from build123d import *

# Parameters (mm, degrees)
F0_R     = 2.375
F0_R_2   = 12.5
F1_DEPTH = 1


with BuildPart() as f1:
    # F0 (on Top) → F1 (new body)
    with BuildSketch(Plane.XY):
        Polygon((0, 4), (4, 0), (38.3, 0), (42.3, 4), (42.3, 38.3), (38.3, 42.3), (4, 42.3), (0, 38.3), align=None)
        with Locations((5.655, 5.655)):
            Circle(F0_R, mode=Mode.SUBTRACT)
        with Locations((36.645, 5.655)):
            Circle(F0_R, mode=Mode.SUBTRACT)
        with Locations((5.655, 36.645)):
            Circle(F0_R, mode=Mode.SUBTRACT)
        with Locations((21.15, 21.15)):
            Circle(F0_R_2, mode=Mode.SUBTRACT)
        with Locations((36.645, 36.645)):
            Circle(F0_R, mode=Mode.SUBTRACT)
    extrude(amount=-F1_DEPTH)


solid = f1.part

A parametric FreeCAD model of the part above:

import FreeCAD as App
import Part
import Sketcher


def add_polygon(sketch, points):
    """Adds a closed chain of lines whose ends are joined by coincident constraints."""
    first, n = sketch.GeometryCount, len(points)
    for a, b in zip(points, points[1:] + points[:1]):
        sketch.addGeometry(Part.LineSegment(App.Vector(*a, 0), App.Vector(*b, 0)), False)
    for i in range(n):
        sketch.addConstraint(Sketcher.Constraint("Coincident", first + i, 2, first + (i + 1) % n, 1))

doc = App.newDocument("Part")
body = doc.addObject("PartDesign::Body", "Body")

# Sketch on XY plane
sketch1 = body.newObject("Sketcher::SketchObject", "Sketch")
sketch1.AttachmentSupport = (doc.getObject("XY_Plane"), [""])
sketch1.MapMode = "FlatFace"
add_polygon(sketch1, [(0, 4), (4, 0), (38.3, 0), (42.3, 4), (42.3, 38.3), (38.3, 42.3), (4, 42.3), (0, 38.3)])  # lines 0-7
sketch1.addGeometry(Part.Circle(App.Vector(5.7, 5.7, 0), App.Vector(0, 0, 1), 2.4), False)  # 8
sketch1.addGeometry(Part.Circle(App.Vector(21.1, 21.1, 0), App.Vector(0, 0, 1), 12.5), False)  # 9
sketch1.addGeometry(Part.Circle(App.Vector(36.6, 5.7, 0), App.Vector(0, 0, 1), 2.4), False)  # 10
sketch1.addGeometry(Part.Circle(App.Vector(5.7, 36.6, 0), App.Vector(0, 0, 1), 2.4), False)  # 11
sketch1.addGeometry(Part.Circle(App.Vector(36.6, 36.6, 0), App.Vector(0, 0, 1), 2.4), False)  # 12
sketch1.addConstraint(Sketcher.Constraint("Horizontal", 1))
sketch1.addConstraint(Sketcher.Constraint("Vertical", 3))
sketch1.addConstraint(Sketcher.Constraint("Horizontal", 5))
sketch1.addConstraint(Sketcher.Constraint("Vertical", 7))
sketch1.addConstraint(Sketcher.Constraint("Equal", 8, 10))
sketch1.addConstraint(Sketcher.Constraint("Equal", 10, 11))
sketch1.addConstraint(Sketcher.Constraint("Equal", 11, 12))
sketch1.addConstraint(Sketcher.Constraint("PointOnObject", 0, 2, -1))
sketch1.addConstraint(Sketcher.Constraint("PointOnObject", 6, 2, -2))
sketch1.addConstraint(Sketcher.Constraint("Perpendicular", 0, 2))
sketch1.addConstraint(Sketcher.Constraint("Perpendicular", 2, 4))
sketch1.addConstraint(Sketcher.Constraint("Perpendicular", 4, 6))
sketch1.addConstraint(Sketcher.Constraint("Horizontal", 8, 3, 10, 3))
sketch1.addConstraint(Sketcher.Constraint("Horizontal", 11, 3, 12, 3))
sketch1.addConstraint(Sketcher.Constraint("Horizontal", 3, 2, 6, 2))
sketch1.addConstraint(Sketcher.Constraint("Horizontal", 2, 2, 7, 2))
sketch1.addConstraint(Sketcher.Constraint("Vertical", 8, 3, 11, 3))
sketch1.addConstraint(Sketcher.Constraint("Vertical", 10, 3, 12, 3))
sketch1.addConstraint(Sketcher.Constraint("Vertical", 1, 2, 4, 2))
sketch1.addConstraint(Sketcher.Constraint("Vertical", 0, 2, 5, 2))
sketch1.addConstraint(Sketcher.Constraint("Equal", 5, 3))
sketch1.addConstraint(Sketcher.Constraint("Diameter", 9, 25.0))
sketch1.addConstraint(Sketcher.Constraint("Diameter", 8, 4.75))
sketch1.addConstraint(Sketcher.Constraint("DistanceX", 1, 1, 1, 2, 34.3))
sketch1.addConstraint(Sketcher.Constraint("DistanceX", -1, 1, 0, 2, 4.0))
sketch1.addConstraint(Sketcher.Constraint("DistanceX", -1, 1, 9, 3, 21.15))
sketch1.addConstraint(Sketcher.Constraint("DistanceY", -1, 1, 9, 3, 21.15))
sketch1.addConstraint(Sketcher.Constraint("DistanceX", 8, 3, 10, 3, 30.99))
sketch1.addConstraint(Sketcher.Constraint("DistanceY", 8, 3, 11, 3, 30.99))
sketch1.addConstraint(Sketcher.Constraint("DistanceX", -1, 1, 8, 3, 5.655))
sketch1.addConstraint(Sketcher.Constraint("DistanceY", -1, 1, 8, 3, 5.655))
pad1 = body.newObject("PartDesign::Pad", "Pad")
pad1.Profile = sketch1
pad1.Length = 1
pad1.Reversed = True

doc.recompute()
